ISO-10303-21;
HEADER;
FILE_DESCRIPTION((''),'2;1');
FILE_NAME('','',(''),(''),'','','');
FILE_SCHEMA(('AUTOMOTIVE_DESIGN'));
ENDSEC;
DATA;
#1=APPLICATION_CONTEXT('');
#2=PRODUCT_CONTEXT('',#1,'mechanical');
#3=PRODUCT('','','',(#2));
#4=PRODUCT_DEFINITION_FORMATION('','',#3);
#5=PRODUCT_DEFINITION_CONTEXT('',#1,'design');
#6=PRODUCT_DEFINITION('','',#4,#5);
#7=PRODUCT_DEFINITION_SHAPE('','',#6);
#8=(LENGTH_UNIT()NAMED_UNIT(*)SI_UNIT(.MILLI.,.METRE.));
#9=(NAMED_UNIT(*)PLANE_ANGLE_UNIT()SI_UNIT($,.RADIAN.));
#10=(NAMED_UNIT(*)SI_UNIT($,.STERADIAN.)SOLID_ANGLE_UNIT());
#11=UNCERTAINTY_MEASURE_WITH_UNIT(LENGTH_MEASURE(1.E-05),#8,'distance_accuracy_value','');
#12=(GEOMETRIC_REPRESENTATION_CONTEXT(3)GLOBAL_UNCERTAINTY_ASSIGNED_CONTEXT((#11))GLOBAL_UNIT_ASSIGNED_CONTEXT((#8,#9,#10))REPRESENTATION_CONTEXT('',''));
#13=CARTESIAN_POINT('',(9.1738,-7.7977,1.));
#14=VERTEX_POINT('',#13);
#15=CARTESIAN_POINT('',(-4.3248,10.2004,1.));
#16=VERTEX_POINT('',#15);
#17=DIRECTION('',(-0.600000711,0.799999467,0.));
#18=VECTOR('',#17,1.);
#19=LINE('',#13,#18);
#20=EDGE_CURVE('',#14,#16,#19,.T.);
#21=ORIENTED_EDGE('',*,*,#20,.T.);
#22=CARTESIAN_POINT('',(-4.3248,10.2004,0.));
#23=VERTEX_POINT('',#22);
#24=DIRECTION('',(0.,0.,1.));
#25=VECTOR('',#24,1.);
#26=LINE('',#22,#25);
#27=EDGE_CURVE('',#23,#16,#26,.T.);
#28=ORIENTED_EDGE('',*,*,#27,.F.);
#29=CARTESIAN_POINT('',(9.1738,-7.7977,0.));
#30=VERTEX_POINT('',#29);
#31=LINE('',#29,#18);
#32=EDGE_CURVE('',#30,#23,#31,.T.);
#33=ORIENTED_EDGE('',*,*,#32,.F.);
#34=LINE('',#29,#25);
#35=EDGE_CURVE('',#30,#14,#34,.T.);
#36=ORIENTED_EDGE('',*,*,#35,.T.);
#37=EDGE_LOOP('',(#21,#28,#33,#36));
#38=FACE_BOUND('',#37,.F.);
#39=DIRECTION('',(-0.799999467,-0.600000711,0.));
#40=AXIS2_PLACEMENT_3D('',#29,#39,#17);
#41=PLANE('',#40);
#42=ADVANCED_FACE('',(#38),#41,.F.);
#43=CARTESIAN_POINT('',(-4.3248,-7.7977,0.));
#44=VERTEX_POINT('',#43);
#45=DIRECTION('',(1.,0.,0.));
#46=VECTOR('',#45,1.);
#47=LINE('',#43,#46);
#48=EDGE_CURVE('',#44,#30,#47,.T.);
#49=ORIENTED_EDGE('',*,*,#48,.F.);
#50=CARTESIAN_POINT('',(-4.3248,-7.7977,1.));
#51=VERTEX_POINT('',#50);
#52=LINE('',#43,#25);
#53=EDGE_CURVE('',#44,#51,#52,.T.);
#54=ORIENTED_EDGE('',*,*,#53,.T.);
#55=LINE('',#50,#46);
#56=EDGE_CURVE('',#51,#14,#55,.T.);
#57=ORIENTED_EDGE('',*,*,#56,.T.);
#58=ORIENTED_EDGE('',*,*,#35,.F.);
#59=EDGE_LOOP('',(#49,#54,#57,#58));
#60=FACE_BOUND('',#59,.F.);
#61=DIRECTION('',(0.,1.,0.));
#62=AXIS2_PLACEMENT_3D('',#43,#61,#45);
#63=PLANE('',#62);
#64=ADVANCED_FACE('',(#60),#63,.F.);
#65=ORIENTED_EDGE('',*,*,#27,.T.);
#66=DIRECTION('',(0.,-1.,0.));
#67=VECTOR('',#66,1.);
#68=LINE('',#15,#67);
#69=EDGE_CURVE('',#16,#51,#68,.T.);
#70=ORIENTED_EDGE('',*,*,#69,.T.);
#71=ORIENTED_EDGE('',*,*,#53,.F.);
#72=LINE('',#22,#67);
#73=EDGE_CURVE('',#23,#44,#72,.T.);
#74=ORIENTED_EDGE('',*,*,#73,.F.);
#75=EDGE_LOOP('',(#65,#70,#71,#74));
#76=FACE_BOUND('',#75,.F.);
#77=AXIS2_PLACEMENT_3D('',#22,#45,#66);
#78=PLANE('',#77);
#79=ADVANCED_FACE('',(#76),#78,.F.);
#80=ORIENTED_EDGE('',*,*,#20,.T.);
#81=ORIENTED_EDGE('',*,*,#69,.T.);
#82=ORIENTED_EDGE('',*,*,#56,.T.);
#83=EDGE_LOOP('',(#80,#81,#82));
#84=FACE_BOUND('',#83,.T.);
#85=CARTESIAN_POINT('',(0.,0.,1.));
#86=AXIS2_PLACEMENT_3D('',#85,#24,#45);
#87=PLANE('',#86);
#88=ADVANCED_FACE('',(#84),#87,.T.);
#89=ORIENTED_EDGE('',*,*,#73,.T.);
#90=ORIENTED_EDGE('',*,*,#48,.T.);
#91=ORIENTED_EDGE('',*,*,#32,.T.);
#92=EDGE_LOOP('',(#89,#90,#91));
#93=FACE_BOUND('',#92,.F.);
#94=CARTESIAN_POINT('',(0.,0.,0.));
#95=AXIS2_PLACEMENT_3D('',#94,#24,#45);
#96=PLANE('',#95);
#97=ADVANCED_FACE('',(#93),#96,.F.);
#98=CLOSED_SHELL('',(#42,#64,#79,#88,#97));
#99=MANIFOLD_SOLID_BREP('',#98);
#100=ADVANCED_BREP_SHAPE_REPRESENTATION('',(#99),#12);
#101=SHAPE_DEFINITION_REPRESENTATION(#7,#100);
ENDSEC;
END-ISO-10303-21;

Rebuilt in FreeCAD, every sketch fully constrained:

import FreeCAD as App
import Part
import Sketcher
Q = App.Units.Quantity


def add_polygon(sketch, points):
    """Adds a closed chain of lines whose ends are joined by coincident constraints."""
    first, n = sketch.GeometryCount, len(points)
    for a, b in zip(points, points[1:] + points[:1]):
        sketch.addGeometry(Part.LineSegment(App.Vector(*a, 0), App.Vector(*b, 0)), False)
    for i in range(n):
        sketch.addConstraint(Sketcher.Constraint("Coincident", first + i, 2, first + (i + 1) % n, 1))

doc = App.newDocument("Part")
body = doc.addObject("PartDesign::Body", "Body")

# Sketch on XY plane
sketch1 = doc.addObject("Sketcher::SketchObject", "Sketch")
body.addObject(sketch1)
sketch1.AttachmentSupport = (doc.XY_Plane, [""])
sketch1.MapMode = "FlatFace"
add_polygon(sketch1, [(9, -8), (-4, 10), (-4, -8)])  # lines 0-2
sketch1.addConstraint([
    Sketcher.Constraint("Vertical", 1),
    Sketcher.Constraint("Horizontal", 2),
    Sketcher.Constraint("Angle", 0, Q("126.87 deg")),
    Sketcher.Constraint("DistanceY", 1, 2, 1, 1, 17.998),
    Sketcher.Constraint("DistanceX", 0, 2, -1, 1, 4.3248),
    Sketcher.Constraint("DistanceY", -1, 1, 0, 2, 10.2004),
])
pad1 = doc.addObject("PartDesign::Pad", "Pad")
body.addObject(pad1)
pad1.Profile = sketch1
pad1.Length = 1

doc.recompute()
